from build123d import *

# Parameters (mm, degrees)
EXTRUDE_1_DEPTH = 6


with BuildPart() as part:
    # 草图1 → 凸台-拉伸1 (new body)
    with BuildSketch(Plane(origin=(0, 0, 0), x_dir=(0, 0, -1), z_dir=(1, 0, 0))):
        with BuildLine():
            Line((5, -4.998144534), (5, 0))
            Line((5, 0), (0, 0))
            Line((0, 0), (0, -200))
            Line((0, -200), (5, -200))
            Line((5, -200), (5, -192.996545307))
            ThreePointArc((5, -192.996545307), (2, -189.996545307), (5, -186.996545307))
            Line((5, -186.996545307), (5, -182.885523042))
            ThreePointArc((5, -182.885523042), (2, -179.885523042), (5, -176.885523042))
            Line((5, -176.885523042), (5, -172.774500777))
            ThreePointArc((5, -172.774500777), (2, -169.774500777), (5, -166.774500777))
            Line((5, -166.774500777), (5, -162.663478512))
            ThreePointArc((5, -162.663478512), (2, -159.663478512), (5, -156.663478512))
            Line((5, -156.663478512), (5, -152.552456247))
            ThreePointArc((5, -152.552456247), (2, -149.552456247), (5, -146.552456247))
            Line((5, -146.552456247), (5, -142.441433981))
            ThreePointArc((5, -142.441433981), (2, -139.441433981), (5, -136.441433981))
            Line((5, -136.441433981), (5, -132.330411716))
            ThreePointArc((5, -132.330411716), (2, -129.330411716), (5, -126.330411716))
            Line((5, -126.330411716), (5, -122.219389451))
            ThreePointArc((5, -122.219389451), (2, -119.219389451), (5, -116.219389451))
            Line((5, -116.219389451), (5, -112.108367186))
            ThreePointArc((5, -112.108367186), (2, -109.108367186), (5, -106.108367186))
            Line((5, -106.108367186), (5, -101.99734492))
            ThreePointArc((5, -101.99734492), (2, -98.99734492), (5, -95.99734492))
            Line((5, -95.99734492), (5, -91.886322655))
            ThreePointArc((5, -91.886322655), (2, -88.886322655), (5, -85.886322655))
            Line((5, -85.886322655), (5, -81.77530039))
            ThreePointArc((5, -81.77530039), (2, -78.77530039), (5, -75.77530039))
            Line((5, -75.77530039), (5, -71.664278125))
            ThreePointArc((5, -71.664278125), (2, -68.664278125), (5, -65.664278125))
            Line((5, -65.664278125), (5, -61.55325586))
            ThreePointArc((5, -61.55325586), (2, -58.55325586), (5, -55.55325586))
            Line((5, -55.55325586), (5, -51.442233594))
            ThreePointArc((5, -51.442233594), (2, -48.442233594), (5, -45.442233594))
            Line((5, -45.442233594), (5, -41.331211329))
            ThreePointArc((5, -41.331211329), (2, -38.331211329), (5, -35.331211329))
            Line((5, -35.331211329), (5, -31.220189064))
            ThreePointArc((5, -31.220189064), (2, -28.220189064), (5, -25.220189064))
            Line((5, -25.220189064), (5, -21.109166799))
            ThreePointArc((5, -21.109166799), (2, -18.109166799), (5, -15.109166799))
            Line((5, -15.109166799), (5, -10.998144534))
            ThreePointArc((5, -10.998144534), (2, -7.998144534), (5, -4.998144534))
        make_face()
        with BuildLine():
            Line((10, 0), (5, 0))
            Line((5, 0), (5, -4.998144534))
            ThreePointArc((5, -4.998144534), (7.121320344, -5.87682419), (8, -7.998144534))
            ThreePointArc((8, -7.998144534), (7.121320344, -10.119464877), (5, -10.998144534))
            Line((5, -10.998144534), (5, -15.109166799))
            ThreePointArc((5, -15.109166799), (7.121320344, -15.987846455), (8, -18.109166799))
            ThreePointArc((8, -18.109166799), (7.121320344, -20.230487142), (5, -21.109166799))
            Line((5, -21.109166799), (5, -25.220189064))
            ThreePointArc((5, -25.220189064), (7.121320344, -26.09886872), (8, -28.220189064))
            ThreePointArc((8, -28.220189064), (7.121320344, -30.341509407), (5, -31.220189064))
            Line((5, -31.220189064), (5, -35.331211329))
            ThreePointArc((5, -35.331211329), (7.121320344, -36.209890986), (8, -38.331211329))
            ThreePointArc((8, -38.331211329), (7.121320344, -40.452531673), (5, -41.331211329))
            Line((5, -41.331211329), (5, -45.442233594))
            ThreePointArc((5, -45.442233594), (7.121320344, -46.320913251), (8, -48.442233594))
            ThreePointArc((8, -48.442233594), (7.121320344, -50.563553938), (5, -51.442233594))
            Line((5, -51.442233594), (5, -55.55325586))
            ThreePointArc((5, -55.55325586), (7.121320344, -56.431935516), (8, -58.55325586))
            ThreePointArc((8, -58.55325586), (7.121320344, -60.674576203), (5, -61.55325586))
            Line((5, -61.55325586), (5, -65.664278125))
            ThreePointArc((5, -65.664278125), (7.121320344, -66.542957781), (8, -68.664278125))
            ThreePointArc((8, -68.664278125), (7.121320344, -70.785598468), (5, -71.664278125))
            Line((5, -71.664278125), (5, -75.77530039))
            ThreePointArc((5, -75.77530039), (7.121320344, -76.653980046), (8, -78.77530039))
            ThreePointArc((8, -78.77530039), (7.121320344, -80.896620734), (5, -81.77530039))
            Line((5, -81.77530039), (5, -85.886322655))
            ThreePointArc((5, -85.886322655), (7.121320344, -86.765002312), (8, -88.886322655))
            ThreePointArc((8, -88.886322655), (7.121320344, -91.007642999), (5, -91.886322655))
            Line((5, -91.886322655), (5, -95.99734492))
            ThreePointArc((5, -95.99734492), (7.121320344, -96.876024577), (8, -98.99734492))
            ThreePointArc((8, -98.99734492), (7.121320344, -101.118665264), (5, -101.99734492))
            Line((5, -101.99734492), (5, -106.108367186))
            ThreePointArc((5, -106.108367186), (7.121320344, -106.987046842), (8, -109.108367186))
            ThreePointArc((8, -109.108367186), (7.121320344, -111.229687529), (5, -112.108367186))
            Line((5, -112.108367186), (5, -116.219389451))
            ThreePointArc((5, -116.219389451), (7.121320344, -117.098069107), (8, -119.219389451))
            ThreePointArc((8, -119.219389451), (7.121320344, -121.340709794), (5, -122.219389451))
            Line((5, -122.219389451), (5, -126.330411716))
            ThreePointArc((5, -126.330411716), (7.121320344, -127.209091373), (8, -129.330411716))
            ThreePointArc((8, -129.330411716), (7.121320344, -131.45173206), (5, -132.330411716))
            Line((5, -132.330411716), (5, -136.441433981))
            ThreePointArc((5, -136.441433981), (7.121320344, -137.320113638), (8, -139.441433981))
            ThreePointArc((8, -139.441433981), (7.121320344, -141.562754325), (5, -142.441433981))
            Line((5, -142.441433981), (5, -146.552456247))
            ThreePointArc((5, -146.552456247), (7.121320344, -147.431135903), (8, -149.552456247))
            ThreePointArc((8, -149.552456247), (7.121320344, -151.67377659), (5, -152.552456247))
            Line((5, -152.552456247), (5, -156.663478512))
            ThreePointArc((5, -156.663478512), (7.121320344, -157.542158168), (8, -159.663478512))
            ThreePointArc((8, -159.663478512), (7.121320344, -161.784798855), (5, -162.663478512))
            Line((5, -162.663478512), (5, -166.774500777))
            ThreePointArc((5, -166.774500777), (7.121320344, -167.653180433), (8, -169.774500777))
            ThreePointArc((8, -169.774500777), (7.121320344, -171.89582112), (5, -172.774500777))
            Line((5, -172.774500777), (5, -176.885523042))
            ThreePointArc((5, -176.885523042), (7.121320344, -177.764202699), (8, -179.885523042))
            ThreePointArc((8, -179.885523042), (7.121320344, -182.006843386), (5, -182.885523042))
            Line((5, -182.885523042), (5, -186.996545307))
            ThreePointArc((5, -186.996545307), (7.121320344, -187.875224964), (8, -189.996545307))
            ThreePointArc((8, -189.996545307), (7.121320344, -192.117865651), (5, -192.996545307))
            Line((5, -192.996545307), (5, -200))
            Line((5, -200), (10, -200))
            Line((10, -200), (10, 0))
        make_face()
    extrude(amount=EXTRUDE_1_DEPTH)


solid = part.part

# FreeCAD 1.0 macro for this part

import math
import FreeCAD as App
import Part
import Sketcher
Q = App.Units.Quantity

doc = App.newDocument("Part")
body = doc.addObject("PartDesign::Body", "Body")

sketch1 = doc.addObject("Sketcher::SketchObject", "Sketch")
body.addObject(sketch1)
sketch1.AttachmentSupport = (doc.YZ_Plane, [""])
sketch1.MapMode = "FlatFace"
sketch1.addGeometry(Part.LineSegment(App.Vector(0, 0, 0), App.Vector(-200, 0, 0)), False)
sketch1.addGeometry(Part.LineSegment(App.Vector(-200, 0, 0), App.Vector(-200, -10, 0)), False)
sketch1.addGeometry(Part.LineSegment(App.Vector(-200, -10, 0), App.Vector(0, -10, 0)), False)
sketch1.addGeometry(Part.LineSegment(App.Vector(0, -10, 0), App.Vector(0, 0, 0)), False)
sketch1.addGeometry(Part.ArcOfCircle(Part.Circle(App.Vector(-190, -5, 0), App.Vector(0, 0, 1), 3), math.radians(0), math.radians(180)), False)
sketch1.addGeometry(Part.ArcOfCircle(Part.Circle(App.Vector(-190, -5, 0), App.Vector(0, 0, 1), 3), math.radians(-90), math.radians(0)), False)
sketch1.addGeometry(Part.ArcOfCircle(Part.Circle(App.Vector(-190, -5, 0), App.Vector(0, 0, 1), 3), math.radians(180), math.radians(270)), False)
sketch1.addGeometry(Part.ArcOfCircle(Part.Circle(App.Vector(-179.9, -5, 0), App.Vector(0, 0, 1), 3), math.radians(0), math.radians(180)), False)
sketch1.addGeometry(Part.ArcOfCircle(Part.Circle(App.Vector(-179.9, -5, 0), App.Vector(0, 0, 1), 3), math.radians(-90), math.radians(0)), False)
sketch1.addGeometry(Part.ArcOfCircle(Part.Circle(App.Vector(-179.9, -5, 0), App.Vector(0, 0, 1), 3), math.radians(180), math.radians(270)), False)
sketch1.addGeometry(Part.ArcOfCircle(Part.Circle(App.Vector(-169.8, -5, 0), App.Vector(0, 0, 1), 3), math.radians(0), math.radians(180)), False)
sketch1.addGeometry(Part.ArcOfCircle(Part.Circle(App.Vector(-169.8, -5, 0), App.Vector(0, 0, 1), 3), math.radians(-90), math.radians(0)), False)
sketch1.addGeometry(Part.ArcOfCircle(Part.Circle(App.Vector(-169.8, -5, 0), App.Vector(0, 0, 1), 3), math.radians(180), math.radians(270)), False)
sketch1.addGeometry(Part.ArcOfCircle(Part.Circle(App.Vector(-159.7, -5, 0), App.Vector(0, 0, 1), 3), math.radians(0), math.radians(180)), False)
sketch1.addGeometry(Part.ArcOfCircle(Part.Circle(App.Vector(-159.7, -5, 0), App.Vector(0, 0, 1), 3), math.radians(-90), math.radians(0)), False)
sketch1.addGeometry(Part.ArcOfCircle(Part.Circle(App.Vector(-159.7, -5, 0), App.Vector(0, 0, 1), 3), math.radians(180), math.radians(270)), False)
sketch1.addGeometry(Part.ArcOfCircle(Part.Circle(App.Vector(-149.6, -5, 0), App.Vector(0, 0, 1), 3), math.radians(0), math.radians(180)), False)
sketch1.addGeometry(Part.ArcOfCircle(Part.Circle(App.Vector(-149.6, -5, 0), App.Vector(0, 0, 1), 3), math.radians(-90), math.radians(0)), False)
sketch1.addGeometry(Part.ArcOfCircle(Part.Circle(App.Vector(-149.6, -5, 0), App.Vector(0, 0, 1), 3), math.radians(180), math.radians(270)), False)
sketch1.addGeometry(Part.ArcOfCircle(Part.Circle(App.Vector(-139.4, -5, 0), App.Vector(0, 0, 1), 3), math.radians(0), math.radians(180)), False)
sketch1.addGeometry(Part.ArcOfCircle(Part.Circle(App.Vector(-139.4, -5, 0), App.Vector(0, 0, 1), 3), math.radians(-90), math.radians(0)), False)
sketch1.addGeometry(Part.ArcOfCircle(Part.Circle(App.Vector(-139.4, -5, 0), App.Vector(0, 0, 1), 3), math.radians(180), math.radians(270)), False)
sketch1.addGeometry(Part.ArcOfCircle(Part.Circle(App.Vector(-129.3, -5, 0), App.Vector(0, 0, 1), 3), math.radians(0), math.radians(180)), False)
sketch1.addGeometry(Part.ArcOfCircle(Part.Circle(App.Vector(-129.3, -5, 0), App.Vector(0, 0, 1), 3), math.radians(-90), math.radians(0)), False)
sketch1.addGeometry(Part.ArcOfCircle(Part.Circle(App.Vector(-129.3, -5, 0), App.Vector(0, 0, 1), 3), math.radians(180), math.radians(270)), False)
sketch1.addGeometry(Part.ArcOfCircle(Part.Circle(App.Vector(-119.2, -5, 0), App.Vector(0, 0, 1), 3), math.radians(0), math.radians(180)), False)
sketch1.addGeometry(Part.ArcOfCircle(Part.Circle(App.Vector(-119.2, -5, 0), App.Vector(0, 0, 1), 3), math.radians(-90), math.radians(0)), False)
sketch1.addGeometry(Part.ArcOfCircle(Part.Circle(App.Vector(-119.2, -5, 0), App.Vector(0, 0, 1), 3), math.radians(180), math.radians(270)), False)
sketch1.addGeometry(Part.ArcOfCircle(Part.Circle(App.Vector(-109.1, -5, 0), App.Vector(0, 0, 1), 3), math.radians(0), math.radians(180)), False)
sketch1.addGeometry(Part.ArcOfCircle(Part.Circle(App.Vector(-109.1, -5, 0), App.Vector(0, 0, 1), 3), math.radians(-90), math.radians(0)), False)
sketch1.addGeometry(Part.ArcOfCircle(Part.Circle(App.Vector(-109.1, -5, 0), App.Vector(0, 0, 1), 3), math.radians(180), math.radians(270)), False)
sketch1.addGeometry(Part.ArcOfCircle(Part.Circle(App.Vector(-99, -5, 0), App.Vector(0, 0, 1), 3), math.radians(0), math.radians(180)), False)
sketch1.addGeometry(Part.ArcOfCircle(Part.Circle(App.Vector(-99, -5, 0), App.Vector(0, 0, 1), 3), math.radians(-90), math.radians(0)), False)
sketch1.addGeometry(Part.ArcOfCircle(Part.Circle(App.Vector(-99, -5, 0), App.Vector(0, 0, 1), 3), math.radians(180), math.radians(270)), False)
sketch1.addGeometry(Part.ArcOfCircle(Part.Circle(App.Vector(-88.9, -5, 0), App.Vector(0, 0, 1), 3), math.radians(0), math.radians(180)), False)
sketch1.addGeometry(Part.ArcOfCircle(Part.Circle(App.Vector(-88.9, -5, 0), App.Vector(0, 0, 1), 3), math.radians(-90), math.radians(0)), False)
sketch1.addGeometry(Part.ArcOfCircle(Part.Circle(App.Vector(-88.9, -5, 0), App.Vector(0, 0, 1), 3), math.radians(180), math.radians(270)), False)
sketch1.addGeometry(Part.ArcOfCircle(Part.Circle(App.Vector(-78.8, -5, 0), App.Vector(0, 0, 1), 3), math.radians(0), math.radians(180)), False)
sketch1.addGeometry(Part.ArcOfCircle(Part.Circle(App.Vector(-78.8, -5, 0), App.Vector(0, 0, 1), 3), math.radians(-90), math.radians(0)), False)
sketch1.addGeometry(Part.ArcOfCircle(Part.Circle(App.Vector(-78.8, -5, 0), App.Vector(0, 0, 1), 3), math.radians(180), math.radians(270)), False)
sketch1.addGeometry(Part.ArcOfCircle(Part.Circle(App.Vector(-68.7, -5, 0), App.Vector(0, 0, 1), 3), math.radians(0), math.radians(180)), False)
sketch1.addGeometry(Part.ArcOfCircle(Part.Circle(App.Vector(-68.7, -5, 0), App.Vector(0, 0, 1), 3), math.radians(-90), math.radians(0)), False)
sketch1.addGeometry(Part.ArcOfCircle(Part.Circle(App.Vector(-68.7, -5, 0), App.Vector(0, 0, 1), 3), math.radians(180), math.radians(270)), False)
sketch1.addGeometry(Part.ArcOfCircle(Part.Circle(App.Vector(-58.6, -5, 0), App.Vector(0, 0, 1), 3), math.radians(0), math.radians(180)), False)
sketch1.addGeometry(Part.ArcOfCircle(Part.Circle(App.Vector(-58.6, -5, 0), App.Vector(0, 0, 1), 3), math.radians(-90), math.radians(0)), False)
sketch1.addGeometry(Part.ArcOfCircle(Part.Circle(App.Vector(-58.6, -5, 0), App.Vector(0, 0, 1), 3), math.radians(180), math.radians(270)), False)
sketch1.addGeometry(Part.ArcOfCircle(Part.Circle(App.Vector(-48.4, -5, 0), App.Vector(0, 0, 1), 3), math.radians(0), math.radians(180)), False)
sketch1.addGeometry(Part.ArcOfCircle(Part.Circle(App.Vector(-48.4, -5, 0), App.Vector(0, 0, 1), 3), math.radians(-90), math.radians(0)), False)
sketch1.addGeometry(Part.ArcOfCircle(Part.Circle(App.Vector(-48.4, -5, 0), App.Vector(0, 0, 1), 3), math.radians(180), math.radians(270)), False)
sketch1.addGeometry(Part.ArcOfCircle(Part.Circle(App.Vector(-38.3, -5, 0), App.Vector(0, 0, 1), 3), math.radians(0), math.radians(180)), False)
sketch1.addGeometry(Part.ArcOfCircle(Part.Circle(App.Vector(-38.3, -5, 0), App.Vector(0, 0, 1), 3), math.radians(-90), math.radians(0)), False)
sketch1.addGeometry(Part.ArcOfCircle(Part.Circle(App.Vector(-38.3, -5, 0), App.Vector(0, 0, 1), 3), math.radians(180), math.radians(270)), False)
sketch1.addGeometry(Part.ArcOfCircle(Part.Circle(App.Vector(-28.2, -5, 0), App.Vector(0, 0, 1), 3), math.radians(0), math.radians(180)), False)
sketch1.addGeometry(Part.ArcOfCircle(Part.Circle(App.Vector(-28.2, -5, 0), App.Vector(0, 0, 1), 3), math.radians(-90), math.radians(0)), False)
sketch1.addGeometry(Part.ArcOfCircle(Part.Circle(App.Vector(-28.2, -5, 0), App.Vector(0, 0, 1), 3), math.radians(180), math.radians(270)), False)
sketch1.addGeometry(Part.ArcOfCircle(Part.Circle(App.Vector(-18.1, -5, 0), App.Vector(0, 0, 1), 3), math.radians(0), math.radians(180)), False)
sketch1.addGeometry(Part.ArcOfCircle(Part.Circle(App.Vector(-18.1, -5, 0), App.Vector(0, 0, 1), 3), math.radians(-90), math.radians(0)), False)
sketch1.addGeometry(Part.ArcOfCircle(Part.Circle(App.Vector(-18.1, -5, 0), App.Vector(0, 0, 1), 3), math.radians(180), math.radians(270)), False)
sketch1.addGeometry(Part.ArcOfCircle(Part.Circle(App.Vector(-8, -5, 0), App.Vector(0, 0, 1), 3), math.radians(0), math.radians(180)), False)
sketch1.addGeometry(Part.ArcOfCircle(Part.Circle(App.Vector(-8, -5, 0), App.Vector(0, 0, 1), 3), math.radians(-90), math.radians(0)), False)
sketch1.addGeometry(Part.ArcOfCircle(Part.Circle(App.Vector(-8, -5, 0), App.Vector(0, 0, 1), 3), math.radians(180), math.radians(270)), False)
sketch1.addConstraint(Sketcher.Constraint("Coincident", 0, 2, 1, 1))
sketch1.addConstraint(Sketcher.Constraint("Coincident", 1, 2, 2, 1))
sketch1.addConstraint(Sketcher.Constraint("Coincident", 2, 2, 3, 1))
sketch1.addConstraint(Sketcher.Constraint("Coincident", 3, 2, 0, 1))
sketch1.addConstraint(Sketcher.Constraint("Tangent", 4, 1, 5, 2))
sketch1.addConstraint(Sketcher.Constraint("Tangent", 5, 1, 6, 2))
sketch1.addConstraint(Sketcher.Constraint("Tangent", 6, 1, 4, 2))
sketch1.addConstraint(Sketcher.Constraint("Tangent", 7, 1, 8, 2))
sketch1.addConstraint(Sketcher.Constraint("Tangent", 8, 1, 9, 2))
sketch1.addConstraint(Sketcher.Constraint("Tangent", 9, 1, 7, 2))
sketch1.addConstraint(Sketcher.Constraint("Tangent", 10, 1, 11, 2))
sketch1.addConstraint(Sketcher.Constraint("Tangent", 11, 1, 12, 2))
sketch1.addConstraint(Sketcher.Constraint("Tangent", 12, 1, 10, 2))
sketch1.addConstraint(Sketcher.Constraint("Tangent", 13, 1, 14, 2))
sketch1.addConstraint(Sketcher.Constraint("Tangent", 14, 1, 15, 2))
sketch1.addConstraint(Sketcher.Constraint("Tangent", 15, 1, 13, 2))
sketch1.addConstraint(Sketcher.Constraint("Tangent", 16, 1, 17, 2))
sketch1.addConstraint(Sketcher.Constraint("Tangent", 17, 1, 18, 2))
sketch1.addConstraint(Sketcher.Constraint("Tangent", 18, 1, 16, 2))
sketch1.addConstraint(Sketcher.Constraint("Tangent", 19, 1, 20, 2))
sketch1.addConstraint(Sketcher.Constraint("Tangent", 20, 1, 21, 2))
sketch1.addConstraint(Sketcher.Constraint("Tangent", 21, 1, 19, 2))
sketch1.addConstraint(Sketcher.Constraint("Tangent", 22, 1, 23, 2))
sketch1.addConstraint(Sketcher.Constraint("Tangent", 23, 1, 24, 2))
sketch1.addConstraint(Sketcher.Constraint("Tangent", 24, 1, 22, 2))
sketch1.addConstraint(Sketcher.Constraint("Tangent", 25, 1, 26, 2))
sketch1.addConstraint(Sketcher.Constraint("Tangent", 26, 1, 27, 2))
sketch1.addConstraint(Sketcher.Constraint("Tangent", 27, 1, 25, 2))
sketch1.addConstraint(Sketcher.Constraint("Tangent", 28, 1, 29, 2))
sketch1.addConstraint(Sketcher.Constraint("Tangent", 29, 1, 30, 2))
sketch1.addConstraint(Sketcher.Constraint("Tangent", 30, 1, 28, 2))
sketch1.addConstraint(Sketcher.Constraint("Tangent", 31, 1, 32, 2))
sketch1.addConstraint(Sketcher.Constraint("Tangent", 32, 1, 33, 2))
sketch1.addConstraint(Sketcher.Constraint("Tangent", 33, 1, 31, 2))
sketch1.addConstraint(Sketcher.Constraint("Tangent", 34, 1, 35, 2))
sketch1.addConstraint(Sketcher.Constraint("Tangent", 35, 1, 36, 2))
sketch1.addConstraint(Sketcher.Constraint("Tangent", 36, 1, 34, 2))
sketch1.addConstraint(Sketcher.Constraint("Tangent", 37, 1, 38, 2))
sketch1.addConstraint(Sketcher.Constraint("Tangent", 38, 1, 39, 2))
sketch1.addConstraint(Sketcher.Constraint("Tangent", 39, 1, 37, 2))
sketch1.addConstraint(Sketcher.Constraint("Tangent", 40, 1, 41, 2))
sketch1.addConstraint(Sketcher.Constraint("Tangent", 41, 1, 42, 2))
sketch1.addConstraint(Sketcher.Constraint("Tangent", 42, 1, 40, 2))
sketch1.addConstraint(Sketcher.Constraint("Tangent", 43, 1, 44, 2))
sketch1.addConstraint(Sketcher.Constraint("Tangent", 44, 1, 45, 2))
sketch1.addConstraint(Sketcher.Constraint("Tangent", 45, 1, 43, 2))
sketch1.addConstraint(Sketcher.Constraint("Tangent", 46, 1, 47, 2))
sketch1.addConstraint(Sketcher.Constraint("Tangent", 47, 1, 48, 2))
sketch1.addConstraint(Sketcher.Constraint("Tangent", 48, 1, 46, 2))
sketch1.addConstraint(Sketcher.Constraint("Tangent", 49, 1, 50, 2))
sketch1.addConstraint(Sketcher.Constraint("Tangent", 50, 1, 51, 2))
sketch1.addConstraint(Sketcher.Constraint("Tangent", 51, 1, 49, 2))
sketch1.addConstraint(Sketcher.Constraint("Tangent", 52, 1, 53, 2))
sketch1.addConstraint(Sketcher.Constraint("Tangent", 53, 1, 54, 2))
sketch1.addConstraint(Sketcher.Constraint("Tangent", 54, 1, 52, 2))
sketch1.addConstraint(Sketcher.Constraint("Tangent", 55, 1, 56, 2))
sketch1.addConstraint(Sketcher.Constraint("Tangent", 56, 1, 57, 2))
sketch1.addConstraint(Sketcher.Constraint("Tangent", 57, 1, 55, 2))
sketch1.addConstraint(Sketcher.Constraint("Tangent", 58, 1, 59, 2))
sketch1.addConstraint(Sketcher.Constraint("Tangent", 59, 1, 60, 2))
sketch1.addConstraint(Sketcher.Constraint("Tangent", 60, 1, 58, 2))
sketch1.addConstraint(Sketcher.Constraint("Horizontal", 0))
sketch1.addConstraint(Sketcher.Constraint("Vertical", 1))
sketch1.addConstraint(Sketcher.Constraint("Horizontal", 2))
sketch1.addConstraint(Sketcher.Constraint("Vertical", 3))
sketch1.addConstraint(Sketcher.Constraint("Coincident", 3, 2, -1, 1))
sketch1.addConstraint(Sketcher.Constraint("Equal", 6, 7))
sketch1.addConstraint(Sketcher.Constraint("Equal", 9, 10))
sketch1.addConstraint(Sketcher.Constraint("Equal", 12, 13))
sketch1.addConstraint(Sketcher.Constraint("Equal", 15, 16))
sketch1.addConstraint(Sketcher.Constraint("Equal", 18, 19))
sketch1.addConstraint(Sketcher.Constraint("Equal", 21, 22))
sketch1.addConstraint(Sketcher.Constraint("Equal", 24, 25))
sketch1.addConstraint(Sketcher.Constraint("Equal", 27, 28))
sketch1.addConstraint(Sketcher.Constraint("Equal", 30, 31))
sketch1.addConstraint(Sketcher.Constraint("Equal", 33, 34))
sketch1.addConstraint(Sketcher.Constraint("Equal", 36, 37))
sketch1.addConstraint(Sketcher.Constraint("Equal", 39, 40))
sketch1.addConstraint(Sketcher.Constraint("Equal", 42, 43))
sketch1.addConstraint(Sketcher.Constraint("Equal", 45, 46))
sketch1.addConstraint(Sketcher.Constraint("Equal", 48, 49))
sketch1.addConstraint(Sketcher.Constraint("Equal", 51, 52))
sketch1.addConstraint(Sketcher.Constraint("Equal", 54, 55))
sketch1.addConstraint(Sketcher.Constraint("Equal", 57, 58))
sketch1.addConstraint(Sketcher.Constraint("Horizontal", 6, 3, 7, 3))
sketch1.addConstraint(Sketcher.Constraint("Horizontal", 9, 3, 10, 3))
sketch1.addConstraint(Sketcher.Constraint("Horizontal", 12, 3, 13, 3))
sketch1.addConstraint(Sketcher.Constraint("Horizontal", 15, 3, 16, 3))
sketch1.addConstraint(Sketcher.Constraint("Horizontal", 18, 3, 19, 3))
sketch1.addConstraint(Sketcher.Constraint("Horizontal", 21, 3, 22, 3))
sketch1.addConstraint(Sketcher.Constraint("Horizontal", 24, 3, 25, 3))
sketch1.addConstraint(Sketcher.Constraint("Horizontal", 27, 3, 28, 3))
sketch1.addConstraint(Sketcher.Constraint("Horizontal", 30, 3, 31, 3))
sketch1.addConstraint(Sketcher.Constraint("Horizontal", 33, 3, 34, 3))
sketch1.addConstraint(Sketcher.Constraint("Horizontal", 36, 3, 37, 3))
sketch1.addConstraint(Sketcher.Constraint("Horizontal", 39, 3, 40, 3))
sketch1.addConstraint(Sketcher.Constraint("Horizontal", 42, 3, 43, 3))
sketch1.addConstraint(Sketcher.Constraint("Horizontal", 45, 3, 46, 3))
sketch1.addConstraint(Sketcher.Constraint("Horizontal", 48, 3, 49, 3))
sketch1.addConstraint(Sketcher.Constraint("Horizontal", 51, 3, 52, 3))
sketch1.addConstraint(Sketcher.Constraint("Horizontal", 54, 3, 55, 3))
sketch1.addConstraint(Sketcher.Constraint("Horizontal", 57, 3, 58, 3))
sketch1.addConstraint(Sketcher.Constraint("Horizontal", 60, 3, 4, 1))
sketch1.addConstraint(Sketcher.Constraint("Horizontal", 4, 1, 6, 1))
sketch1.addConstraint(Sketcher.Constraint("Horizontal", 6, 1, 7, 1))
sketch1.addConstraint(Sketcher.Constraint("Horizontal", 7, 1, 9, 1))
sketch1.addConstraint(Sketcher.Constraint("Horizontal", 9, 1, 10, 1))
sketch1.addConstraint(Sketcher.Constraint("Horizontal", 10, 1, 12, 1))
sketch1.addConstraint(Sketcher.Constraint("Horizontal", 12, 1, 13, 1))
sketch1.addConstraint(Sketcher.Constraint("Horizontal", 13, 1, 15, 1))
sketch1.addConstraint(Sketcher.Constraint("Horizontal", 15, 1, 16, 1))
sketch1.addConstraint(Sketcher.Constraint("Horizontal", 16, 1, 18, 1))
sketch1.addConstraint(Sketcher.Constraint("Horizontal", 18, 1, 19, 1))
sketch1.addConstraint(Sketcher.Constraint("Horizontal", 19, 1, 21, 1))
sketch1.addConstraint(Sketcher.Constraint("Horizontal", 21, 1, 22, 1))
sketch1.addConstraint(Sketcher.Constraint("Horizontal", 22, 1, 24, 1))
sketch1.addConstraint(Sketcher.Constraint("Horizontal", 24, 1, 25, 1))
sketch1.addConstraint(Sketcher.Constraint("Horizontal", 25, 1, 27, 1))
sketch1.addConstraint(Sketcher.Constraint("Horizontal", 27, 1, 28, 1))
sketch1.addConstraint(Sketcher.Constraint("Horizontal", 28, 1, 30, 1))
sketch1.addConstraint(Sketcher.Constraint("Horizontal", 30, 1, 31, 1))
sketch1.addConstraint(Sketcher.Constraint("Horizontal", 31, 1, 33, 1))
sketch1.addConstraint(Sketcher.Constraint("Horizontal", 33, 1, 34, 1))
sketch1.addConstraint(Sketcher.Constraint("Horizontal", 34, 1, 36, 1))
sketch1.addConstraint(Sketcher.Constraint("Horizontal", 36, 1, 37, 1))
sketch1.addConstraint(Sketcher.Constraint("Horizontal", 37, 1, 39, 1))
sketch1.addConstraint(Sketcher.Constraint("Horizontal", 39, 1, 40, 1))
sketch1.addConstraint(Sketcher.Constraint("Horizontal", 40, 1, 42, 1))
sketch1.addConstraint(Sketcher.Constraint("Horizontal", 42, 1, 43, 1))
sketch1.addConstraint(Sketcher.Constraint("Horizontal", 43, 1, 45, 1))
sketch1.addConstraint(Sketcher.Constraint("Horizontal", 45, 1, 46, 1))
sketch1.addConstraint(Sketcher.Constraint("Horizontal", 46, 1, 48, 1))
sketch1.addConstraint(Sketcher.Constraint("Horizontal", 48, 1, 49, 1))
sketch1.addConstraint(Sketcher.Constraint("Horizontal", 49, 1, 51, 1))
sketch1.addConstraint(Sketcher.Constraint("Horizontal", 51, 1, 52, 1))
sketch1.addConstraint(Sketcher.Constraint("Horizontal", 52, 1, 54, 1))
sketch1.addConstraint(Sketcher.Constraint("Horizontal", 54, 1, 55, 1))
sketch1.addConstraint(Sketcher.Constraint("Horizontal", 55, 1, 57, 1))
sketch1.addConstraint(Sketcher.Constraint("Horizontal", 57, 1, 58, 1))
sketch1.addConstraint(Sketcher.Constraint("Horizontal", 58, 1, 60, 1))
sketch1.addConstraint(Sketcher.Constraint("Vertical", 6, 3, 5, 1))
sketch1.addConstraint(Sketcher.Constraint("Vertical", 9, 3, 8, 1))
sketch1.addConstraint(Sketcher.Constraint("Vertical", 12, 3, 11, 1))
sketch1.addConstraint(Sketcher.Constraint("Vertical", 15, 3, 14, 1))
sketch1.addConstraint(Sketcher.Constraint("Vertical", 18, 3, 17, 1))
sketch1.addConstraint(Sketcher.Constraint("Vertical", 21, 3, 20, 1))
sketch1.addConstraint(Sketcher.Constraint("Vertical", 24, 3, 23, 1))
sketch1.addConstraint(Sketcher.Constraint("Vertical", 27, 3, 26, 1))
sketch1.addConstraint(Sketcher.Constraint("Vertical", 30, 3, 29, 1))
sketch1.addConstraint(Sketcher.Constraint("Vertical", 33, 3, 32, 1))
sketch1.addConstraint(Sketcher.Constraint("Vertical", 36, 3, 35, 1))
sketch1.addConstraint(Sketcher.Constraint("Vertical", 39, 3, 38, 1))
sketch1.addConstraint(Sketcher.Constraint("Vertical", 42, 3, 41, 1))
sketch1.addConstraint(Sketcher.Constraint("Vertical", 45, 3, 44, 1))
sketch1.addConstraint(Sketcher.Constraint("Vertical", 48, 3, 47, 1))
sketch1.addConstraint(Sketcher.Constraint("Vertical", 51, 3, 50, 1))
sketch1.addConstraint(Sketcher.Constraint("Vertical", 54, 3, 53, 1))
sketch1.addConstraint(Sketcher.Constraint("Vertical", 57, 3, 56, 1))
sketch1.addConstraint(Sketcher.Constraint("Vertical", 60, 3, 59, 1))
sketch1.addConstraint(Sketcher.Constraint("Radius", 4, Q("3 mm")))
sketch1.addConstraint(Sketcher.Constraint("DistanceX", 0, 2, 0, 1, Q("200 mm")))
sketch1.addConstraint(Sketcher.Constraint("DistanceY", 1, 2, 1, 1, Q("10 mm")))
sketch1.addConstraint(Sketcher.Constraint("DistanceY", 4, 3, -1, 1, Q("5 mm")))
sketch1.addConstraint(Sketcher.Constraint("DistanceX", 10, 3, -1, 1, Q("169.774501 mm")))
sketch1.addConstraint(Sketcher.Constraint("DistanceX", 37, 3, -1, 1, Q("78.7753 mm")))
sketch1.addConstraint(Sketcher.Constraint("DistanceX", 13, 3, -1, 1, Q("159.663479 mm")))
sketch1.addConstraint(Sketcher.Constraint("DistanceX", 22, 3, -1, 1, Q("129.330412 mm")))
sketch1.addConstraint(Sketcher.Constraint("DistanceX", 25, 3, -1, 1, Q("119.219389 mm")))
sketch1.addConstraint(Sketcher.Constraint("DistanceX", 40, 3, -1, 1, Q("68.664278 mm")))
sketch1.addConstraint(Sketcher.Constraint("DistanceX", 49, 3, -1, 1, Q("38.331211 mm")))
sketch1.addConstraint(Sketcher.Constraint("DistanceX", 52, 3, -1, 1, Q("28.220189 mm")))
sketch1.addConstraint(Sketcher.Constraint("DistanceX", 4, 3, -1, 1, Q("189.996545 mm")))
sketch1.addConstraint(Sketcher.Constraint("DistanceX", 7, 3, -1, 1, Q("179.885523 mm")))
sketch1.addConstraint(Sketcher.Constraint("DistanceX", 16, 3, -1, 1, Q("149.552456 mm")))
sketch1.addConstraint(Sketcher.Constraint("DistanceX", 19, 3, -1, 1, Q("139.441434 mm")))
sketch1.addConstraint(Sketcher.Constraint("DistanceX", 28, 3, -1, 1, Q("109.108367 mm")))
sketch1.addConstraint(Sketcher.Constraint("DistanceX", 31, 3, -1, 1, Q("98.997345 mm")))
sketch1.addConstraint(Sketcher.Constraint("DistanceX", 34, 3, -1, 1, Q("88.886323 mm")))
sketch1.addConstraint(Sketcher.Constraint("DistanceX", 43, 3, -1, 1, Q("58.553256 mm")))
sketch1.addConstraint(Sketcher.Constraint("DistanceX", 46, 3, -1, 1, Q("48.442234 mm")))
sketch1.addConstraint(Sketcher.Constraint("DistanceX", 55, 3, -1, 1, Q("18.109167 mm")))
sketch1.addConstraint(Sketcher.Constraint("DistanceX", 58, 3, -1, 1, Q("7.998145 mm")))
pad1 = doc.addObject("PartDesign::Pad", "Pad")
body.addObject(pad1)
pad1.Profile = sketch1
pad1.Length = 6

doc.recompute()
